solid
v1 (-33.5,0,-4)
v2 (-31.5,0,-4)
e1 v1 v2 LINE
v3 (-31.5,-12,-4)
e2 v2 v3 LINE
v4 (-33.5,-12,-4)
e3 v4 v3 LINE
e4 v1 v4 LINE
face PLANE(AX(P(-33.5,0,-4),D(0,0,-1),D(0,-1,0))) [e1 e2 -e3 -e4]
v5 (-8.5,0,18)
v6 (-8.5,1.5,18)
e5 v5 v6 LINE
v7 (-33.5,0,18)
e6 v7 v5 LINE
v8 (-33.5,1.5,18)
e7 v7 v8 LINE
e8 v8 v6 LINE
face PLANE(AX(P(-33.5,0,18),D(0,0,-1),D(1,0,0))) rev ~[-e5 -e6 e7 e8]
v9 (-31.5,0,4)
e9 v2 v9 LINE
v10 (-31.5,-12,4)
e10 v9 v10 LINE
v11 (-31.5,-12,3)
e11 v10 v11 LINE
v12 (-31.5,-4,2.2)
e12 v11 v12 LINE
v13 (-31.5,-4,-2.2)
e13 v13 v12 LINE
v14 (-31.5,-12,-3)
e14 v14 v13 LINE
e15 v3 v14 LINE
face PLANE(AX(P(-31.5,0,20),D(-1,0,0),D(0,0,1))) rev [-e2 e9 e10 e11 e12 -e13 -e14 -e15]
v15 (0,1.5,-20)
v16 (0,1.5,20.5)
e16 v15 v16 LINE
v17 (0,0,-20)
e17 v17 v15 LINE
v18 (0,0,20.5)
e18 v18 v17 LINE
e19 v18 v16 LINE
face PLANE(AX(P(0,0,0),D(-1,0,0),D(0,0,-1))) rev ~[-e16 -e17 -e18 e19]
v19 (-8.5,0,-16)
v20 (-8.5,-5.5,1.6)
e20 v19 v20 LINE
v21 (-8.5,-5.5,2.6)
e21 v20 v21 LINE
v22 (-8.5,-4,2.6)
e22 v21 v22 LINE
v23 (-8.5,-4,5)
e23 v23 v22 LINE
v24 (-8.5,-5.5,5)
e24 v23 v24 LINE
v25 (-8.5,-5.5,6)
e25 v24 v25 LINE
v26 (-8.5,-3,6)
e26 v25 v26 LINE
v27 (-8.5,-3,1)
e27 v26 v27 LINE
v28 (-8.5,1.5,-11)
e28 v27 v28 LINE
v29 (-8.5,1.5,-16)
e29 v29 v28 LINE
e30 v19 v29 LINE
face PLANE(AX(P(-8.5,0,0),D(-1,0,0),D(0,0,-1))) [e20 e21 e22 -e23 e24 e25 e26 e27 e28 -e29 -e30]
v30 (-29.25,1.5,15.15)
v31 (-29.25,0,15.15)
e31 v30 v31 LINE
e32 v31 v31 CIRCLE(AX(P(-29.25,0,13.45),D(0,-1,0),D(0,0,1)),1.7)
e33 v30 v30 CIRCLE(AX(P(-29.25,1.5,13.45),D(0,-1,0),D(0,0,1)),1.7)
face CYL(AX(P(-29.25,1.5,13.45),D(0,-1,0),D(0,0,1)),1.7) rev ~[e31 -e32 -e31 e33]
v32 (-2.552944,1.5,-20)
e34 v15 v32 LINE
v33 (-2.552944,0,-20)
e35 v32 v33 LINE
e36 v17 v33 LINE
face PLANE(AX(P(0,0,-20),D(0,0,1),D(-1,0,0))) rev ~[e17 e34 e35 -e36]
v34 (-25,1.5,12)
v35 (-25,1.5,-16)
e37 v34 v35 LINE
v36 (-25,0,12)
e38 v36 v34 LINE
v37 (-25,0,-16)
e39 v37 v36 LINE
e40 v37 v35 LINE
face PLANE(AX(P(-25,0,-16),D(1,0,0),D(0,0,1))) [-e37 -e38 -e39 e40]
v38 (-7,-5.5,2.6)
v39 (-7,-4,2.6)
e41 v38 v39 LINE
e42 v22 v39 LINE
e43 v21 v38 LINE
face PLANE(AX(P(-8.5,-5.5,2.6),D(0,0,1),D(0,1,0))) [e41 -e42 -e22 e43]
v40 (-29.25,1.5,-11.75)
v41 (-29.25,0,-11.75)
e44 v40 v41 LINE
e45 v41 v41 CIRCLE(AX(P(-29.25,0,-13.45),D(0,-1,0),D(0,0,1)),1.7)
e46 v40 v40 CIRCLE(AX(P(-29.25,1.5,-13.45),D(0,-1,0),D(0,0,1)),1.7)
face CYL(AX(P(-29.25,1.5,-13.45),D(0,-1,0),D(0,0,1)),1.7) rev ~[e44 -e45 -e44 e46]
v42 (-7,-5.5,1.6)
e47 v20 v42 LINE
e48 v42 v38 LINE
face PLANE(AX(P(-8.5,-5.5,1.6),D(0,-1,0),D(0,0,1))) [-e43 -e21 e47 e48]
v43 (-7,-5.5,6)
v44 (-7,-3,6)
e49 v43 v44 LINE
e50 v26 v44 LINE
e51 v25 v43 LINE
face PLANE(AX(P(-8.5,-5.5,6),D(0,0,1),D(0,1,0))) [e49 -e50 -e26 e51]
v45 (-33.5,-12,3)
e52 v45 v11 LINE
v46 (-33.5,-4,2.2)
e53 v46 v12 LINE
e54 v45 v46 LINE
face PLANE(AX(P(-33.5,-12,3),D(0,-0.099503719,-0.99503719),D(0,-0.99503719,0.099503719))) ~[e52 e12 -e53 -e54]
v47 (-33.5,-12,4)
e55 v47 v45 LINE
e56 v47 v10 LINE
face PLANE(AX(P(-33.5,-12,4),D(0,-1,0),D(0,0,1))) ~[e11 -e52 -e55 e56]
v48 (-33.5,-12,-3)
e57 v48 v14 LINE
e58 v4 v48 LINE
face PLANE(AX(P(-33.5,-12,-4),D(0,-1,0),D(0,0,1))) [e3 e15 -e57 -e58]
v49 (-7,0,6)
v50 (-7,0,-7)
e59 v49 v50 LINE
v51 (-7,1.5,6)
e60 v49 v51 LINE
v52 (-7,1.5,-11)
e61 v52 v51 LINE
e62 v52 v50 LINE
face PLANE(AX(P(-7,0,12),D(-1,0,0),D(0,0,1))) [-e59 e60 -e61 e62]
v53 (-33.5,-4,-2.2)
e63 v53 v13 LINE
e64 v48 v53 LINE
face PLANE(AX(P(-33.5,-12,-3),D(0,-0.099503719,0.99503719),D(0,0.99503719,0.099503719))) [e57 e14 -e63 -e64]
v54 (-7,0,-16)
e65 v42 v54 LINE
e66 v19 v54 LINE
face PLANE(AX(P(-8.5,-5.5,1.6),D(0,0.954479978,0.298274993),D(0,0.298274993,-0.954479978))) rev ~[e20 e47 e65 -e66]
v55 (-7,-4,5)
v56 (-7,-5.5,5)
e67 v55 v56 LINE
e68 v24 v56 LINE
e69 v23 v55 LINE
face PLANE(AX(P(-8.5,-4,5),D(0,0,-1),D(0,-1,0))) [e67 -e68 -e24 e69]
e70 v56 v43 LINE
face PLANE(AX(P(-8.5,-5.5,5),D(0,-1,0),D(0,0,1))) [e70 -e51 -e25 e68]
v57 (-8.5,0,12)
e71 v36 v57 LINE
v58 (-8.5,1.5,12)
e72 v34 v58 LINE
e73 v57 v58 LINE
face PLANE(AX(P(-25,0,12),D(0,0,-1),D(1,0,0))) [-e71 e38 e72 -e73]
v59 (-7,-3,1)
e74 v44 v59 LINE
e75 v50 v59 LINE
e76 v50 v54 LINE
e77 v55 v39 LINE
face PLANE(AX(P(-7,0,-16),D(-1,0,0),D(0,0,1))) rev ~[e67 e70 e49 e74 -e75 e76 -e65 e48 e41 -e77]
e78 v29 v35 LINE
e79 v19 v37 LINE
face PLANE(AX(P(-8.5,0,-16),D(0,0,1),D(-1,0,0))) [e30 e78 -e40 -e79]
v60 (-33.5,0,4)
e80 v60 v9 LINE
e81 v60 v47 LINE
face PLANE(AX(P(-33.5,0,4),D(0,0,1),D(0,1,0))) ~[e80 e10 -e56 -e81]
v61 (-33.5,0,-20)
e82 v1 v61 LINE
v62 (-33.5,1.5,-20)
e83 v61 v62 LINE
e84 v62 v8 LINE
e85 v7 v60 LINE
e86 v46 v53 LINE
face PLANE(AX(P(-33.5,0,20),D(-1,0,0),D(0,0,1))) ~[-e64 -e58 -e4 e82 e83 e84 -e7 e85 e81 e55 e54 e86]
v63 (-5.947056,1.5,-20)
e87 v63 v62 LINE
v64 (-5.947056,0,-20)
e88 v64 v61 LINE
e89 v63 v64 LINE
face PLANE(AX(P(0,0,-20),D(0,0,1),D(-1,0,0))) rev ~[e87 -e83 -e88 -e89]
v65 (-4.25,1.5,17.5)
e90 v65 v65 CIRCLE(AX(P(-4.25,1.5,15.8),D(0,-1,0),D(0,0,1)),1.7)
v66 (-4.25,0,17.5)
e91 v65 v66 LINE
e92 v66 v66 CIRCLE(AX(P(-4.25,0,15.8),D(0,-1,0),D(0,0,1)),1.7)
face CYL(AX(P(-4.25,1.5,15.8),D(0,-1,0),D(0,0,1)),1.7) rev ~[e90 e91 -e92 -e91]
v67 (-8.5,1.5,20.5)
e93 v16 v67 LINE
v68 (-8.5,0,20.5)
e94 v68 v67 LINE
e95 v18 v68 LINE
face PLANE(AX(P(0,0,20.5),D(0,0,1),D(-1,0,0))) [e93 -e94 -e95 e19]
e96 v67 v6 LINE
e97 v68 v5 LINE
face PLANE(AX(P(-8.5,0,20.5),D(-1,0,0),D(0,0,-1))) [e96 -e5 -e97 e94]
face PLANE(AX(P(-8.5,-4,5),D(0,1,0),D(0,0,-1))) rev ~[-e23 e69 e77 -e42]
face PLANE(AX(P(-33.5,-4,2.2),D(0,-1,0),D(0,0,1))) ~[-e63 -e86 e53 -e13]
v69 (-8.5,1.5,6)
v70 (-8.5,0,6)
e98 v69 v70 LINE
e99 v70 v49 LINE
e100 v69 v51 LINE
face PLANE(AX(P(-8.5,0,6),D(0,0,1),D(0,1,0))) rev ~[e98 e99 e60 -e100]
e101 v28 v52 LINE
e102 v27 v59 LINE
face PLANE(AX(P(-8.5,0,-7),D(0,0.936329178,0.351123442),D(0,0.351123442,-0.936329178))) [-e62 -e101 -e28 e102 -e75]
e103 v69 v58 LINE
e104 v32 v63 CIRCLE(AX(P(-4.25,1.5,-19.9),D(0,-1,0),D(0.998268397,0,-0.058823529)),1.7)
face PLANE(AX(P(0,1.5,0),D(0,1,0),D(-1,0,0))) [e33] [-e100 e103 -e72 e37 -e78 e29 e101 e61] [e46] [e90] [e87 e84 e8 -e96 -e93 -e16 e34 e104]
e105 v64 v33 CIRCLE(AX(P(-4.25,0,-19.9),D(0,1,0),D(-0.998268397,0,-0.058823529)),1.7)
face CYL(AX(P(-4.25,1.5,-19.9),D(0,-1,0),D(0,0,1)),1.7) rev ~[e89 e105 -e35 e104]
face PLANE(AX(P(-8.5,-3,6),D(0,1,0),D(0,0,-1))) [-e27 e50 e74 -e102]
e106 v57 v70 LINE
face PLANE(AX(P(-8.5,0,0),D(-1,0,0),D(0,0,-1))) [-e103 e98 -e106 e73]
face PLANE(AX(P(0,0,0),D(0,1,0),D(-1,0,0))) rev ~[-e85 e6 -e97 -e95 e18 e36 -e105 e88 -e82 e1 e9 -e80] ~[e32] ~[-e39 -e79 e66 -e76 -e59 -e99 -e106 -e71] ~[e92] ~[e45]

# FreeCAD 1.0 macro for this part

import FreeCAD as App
import Part
import Sketcher
from FreeCAD import Vector

doc = App.newDocument("Part")
body = doc.addObject("PartDesign::Body", "Body")

# Sketch on XZ plane
sketch1 = doc.addObject("Sketcher::SketchObject", "Sketch")
body.addObject(sketch1)
sketch1.AttachmentSupport = (doc.XZ_Plane, [""])
sketch1.MapMode = "FlatFace"
sketch1.addGeometry([
    Part.LineSegment(Vector(0, -20, 0), Vector(-33.5, -20, 0)),  # 0
    Part.LineSegment(Vector(-33.5, -20, 0), Vector(-33.5, 18, 0)),  # 1
    Part.LineSegment(Vector(-33.5, 18, 0), Vector(-8.5, 18, 0)),  # 2
    Part.LineSegment(Vector(-8.5, 18, 0), Vector(-8.5, 20.5, 0)),  # 3
    Part.LineSegment(Vector(-8.5, 20.5, 0), Vector(0, 20.5, 0)),  # 4
    Part.LineSegment(Vector(0, 20.5, 0), Vector(0, -20, 0)),  # 5
    Part.LineSegment(Vector(-8.5, -16, 0), Vector(-8.5, 12, 0)),  # 6
    Part.LineSegment(Vector(-8.5, 12, 0), Vector(-25, 12, 0)),  # 7
    Part.LineSegment(Vector(-25, 12, 0), Vector(-25, -16, 0)),  # 8
    Part.LineSegment(Vector(-25, -16, 0), Vector(-8.5, -16, 0)),  # 9
], False)
sketch1.addConstraint([
    Sketcher.Constraint("Coincident", 0, 2, 1, 1),
    Sketcher.Constraint("Coincident", 1, 2, 2, 1),
    Sketcher.Constraint("Coincident", 2, 2, 3, 1),
    Sketcher.Constraint("Coincident", 3, 2, 4, 1),
    Sketcher.Constraint("Coincident", 4, 2, 5, 1),
    Sketcher.Constraint("Coincident", 5, 2, 0, 1),
    Sketcher.Constraint("Coincident", 6, 2, 7, 1),
    Sketcher.Constraint("Coincident", 7, 2, 8, 1),
    Sketcher.Constraint("Coincident", 8, 2, 9, 1),
    Sketcher.Constraint("Coincident", 9, 2, 6, 1),
    Sketcher.Constraint("Horizontal", 0),
    Sketcher.Constraint("Vertical", 1),
    Sketcher.Constraint("Horizontal", 2),
    Sketcher.Constraint("Vertical", 3),
    Sketcher.Constraint("Horizontal", 4),
    Sketcher.Constraint("Vertical", 5),
    Sketcher.Constraint("Vertical", 6),
    Sketcher.Constraint("Horizontal", 7),
    Sketcher.Constraint("Vertical", 8),
    Sketcher.Constraint("Horizontal", 9),
    Sketcher.Constraint("PointOnObject", 4, 2, -2),
    Sketcher.Constraint("Vertical", 3, 2, 6, 2),
    Sketcher.Constraint("DistanceX", 0, 2, 0, 1, 33.5),
    Sketcher.Constraint("DistanceX", 4, 1, 4, 2, 8.5),
    Sketcher.Constraint("DistanceY", 3, 1, 3, 2, 2.5),
    Sketcher.Constraint("DistanceY", 0, 2, -1, 1, 20.0),
    Sketcher.Constraint("DistanceY", -1, 1, 1, 2, 18.0),
    Sketcher.Constraint("DistanceY", 6, 2, 2, 2, 6.0),
    Sketcher.Constraint("DistanceY", 0, 2, 8, 2, 4.0),
    Sketcher.Constraint("DistanceX", 1, 2, 7, 2, 8.5),
])
pad1 = doc.addObject("PartDesign::Pad", "Pad")
body.addObject(pad1)
pad1.Profile = sketch1
pad1.Length = 1.5
pad1.Reversed = True

# Sketch on YZ plane
sketch2 = doc.addObject("Sketcher::SketchObject", "Sketch001")
body.addObject(sketch2)
sketch2.AttachmentSupport = (doc.YZ_Plane, [""])
sketch2.MapMode = "FlatFace"
sketch2.AttachmentOffset = App.Placement(Vector(0, 0, -8.5), App.Rotation())
sketch2.addGeometry([
    Part.LineSegment(Vector(-5.5, 6, 0), Vector(0, 6, 0)),  # 0
    Part.LineSegment(Vector(0, 6, 0), Vector(0, -16, 0)),  # 1
    Part.LineSegment(Vector(0, -16, 0), Vector(-5.5, 1.6, 0)),  # 2
    Part.LineSegment(Vector(-5.5, 1.6, 0), Vector(-5.5, 2.6, 0)),  # 3
    Part.LineSegment(Vector(-5.5, 2.6, 0), Vector(-4, 2.6, 0)),  # 4
    Part.LineSegment(Vector(-4, 2.6, 0), Vector(-4, 5, 0)),  # 5
    Part.LineSegment(Vector(-4, 5, 0), Vector(-5.5, 5, 0)),  # 6
    Part.LineSegment(Vector(-5.5, 5, 0), Vector(-5.5, 6, 0)),  # 7
], False)
sketch2.addConstraint([
    Sketcher.Constraint("Coincident", 0, 2, 1, 1),
    Sketcher.Constraint("Coincident", 1, 2, 2, 1),
    Sketcher.Constraint("Coincident", 2, 2, 3, 1),
    Sketcher.Constraint("Coincident", 3, 2, 4, 1),
    Sketcher.Constraint("Coincident", 4, 2, 5, 1),
    Sketcher.Constraint("Coincident", 5, 2, 6, 1),
    Sketcher.Constraint("Coincident", 6, 2, 7, 1),
    Sketcher.Constraint("Coincident", 7, 2, 0, 1),
    Sketcher.Constraint("Horizontal", 0),
    Sketcher.Constraint("Vertical", 1),
    Sketcher.Constraint("Vertical", 3),
    Sketcher.Constraint("Horizontal", 4),
    Sketcher.Constraint("Vertical", 5),
    Sketcher.Constraint("Horizontal", 6),
    Sketcher.Constraint("Vertical", 7),
    Sketcher.Constraint("PointOnObject", 0, 2, -2),
    Sketcher.Constraint("Vertical", 3, 2, 6, 2),
    Sketcher.Constraint("Equal", 3, 7),
    Sketcher.Constraint("DistanceY", 3, 1, 3, 2, 1.0),
    Sketcher.Constraint("DistanceX", 0, 1, 0, 2, 5.5),
    Sketcher.Constraint("DistanceX", 4, 2, -1, 1, 4.0),
    Sketcher.Constraint("DistanceY", -1, 1, 5, 2, 5.0),
    Sketcher.Constraint("DistanceY", -1, 1, 3, 2, 2.6),
    Sketcher.Constraint("DistanceY", 1, 2, 1, 1, 22.0),
])
pad2 = doc.addObject("PartDesign::Pad", "Pad001")
body.addObject(pad2)
pad2.Profile = sketch2
pad2.Length = 1.5

# Sketch on YZ plane
sketch3 = doc.addObject("Sketcher::SketchObject", "Sketch002")
body.addObject(sketch3)
sketch3.AttachmentSupport = (doc.YZ_Plane, [""])
sketch3.MapMode = "FlatFace"
sketch3.AttachmentOffset = App.Placement(Vector(0, 0, -8.5), App.Rotation())
sketch3.addGeometry([
    Part.LineSegment(Vector(1.5, 6, 0), Vector(1.5, -11, 0)),
    Part.LineSegment(Vector(1.5, -11, 0), Vector(-3, 1, 0)),
    Part.LineSegment(Vector(-3, 1, 0), Vector(-3, 6, 0)),
    Part.LineSegment(Vector(-3, 6, 0), Vector(1.5, 6, 0)),
], False)
sketch3.addConstraint([
    Sketcher.Constraint("Coincident", 0, 2, 1, 1),
    Sketcher.Constraint("Coincident", 1, 2, 2, 1),
    Sketcher.Constraint("Coincident", 2, 2, 3, 1),
    Sketcher.Constraint("Coincident", 3, 2, 0, 1),
    Sketcher.Constraint("Vertical", 0),
    Sketcher.Constraint("Vertical", 2),
    Sketcher.Constraint("Horizontal", 3),
    Sketcher.Constraint("DistanceY", 2, 1, 2, 2, 5.0),
    Sketcher.Constraint("DistanceY", -1, 1, 1, 2, 1.0),
    Sketcher.Constraint("DistanceY", 0, 2, 0, 1, 17.0),
    Sketcher.Constraint("DistanceX", 3, 1, 3, 2, 4.5),
    Sketcher.Constraint("DistanceX", 1, 2, -1, 1, 3.0),
])
pocket1 = doc.addObject("PartDesign::Pocket", "Pocket")
body.addObject(pocket1)
pocket1.Profile = sketch3
pocket1.Length = 1.5
pocket1.Reversed = True

# Sketch on YZ plane
sketch4 = doc.addObject("Sketcher::SketchObject", "Sketch003")
body.addObject(sketch4)
sketch4.AttachmentSupport = (doc.YZ_Plane, [""])
sketch4.MapMode = "FlatFace"
sketch4.AttachmentOffset = App.Placement(Vector(0, 0, -33.5), App.Rotation())
sketch4.addGeometry([
    Part.LineSegment(Vector(-4, 0, 0), Vector(0, 0, 0)),  # 0
    Part.LineSegment(Vector(0, 0, 0), Vector(0, -4, 0)),  # 1
    Part.LineSegment(Vector(0, -4, 0), Vector(-12, -4, 0)),  # 2
    Part.LineSegment(Vector(-12, -4, 0), Vector(-12, -3, 0)),  # 3
    Part.LineSegment(Vector(-12, -3, 0), Vector(-4, -2.2, 0)),  # 4
    Part.LineSegment(Vector(-4, -2.2, 0), Vector(-4, 0, 0)),  # 5
], False)
sketch4.addConstraint([
    Sketcher.Constraint("Coincident", 0, 2, 1, 1),
    Sketcher.Constraint("Coincident", 1, 2, 2, 1),
    Sketcher.Constraint("Coincident", 2, 2, 3, 1),
    Sketcher.Constraint("Coincident", 3, 2, 4, 1),
    Sketcher.Constraint("Coincident", 4, 2, 5, 1),
    Sketcher.Constraint("Coincident", 5, 2, 0, 1),
    Sketcher.Constraint("Horizontal", 0),
    Sketcher.Constraint("Vertical", 1),
    Sketcher.Constraint("Horizontal", 2),
    Sketcher.Constraint("Vertical", 3),
    Sketcher.Constraint("Vertical", 5),
    Sketcher.Constraint("Coincident", 0, 2, -1, 1),
    Sketcher.Constraint("Equal", 0, 1),
    Sketcher.Constraint("DistanceX", 0, 1, 0, 2, 4.0),
    Sketcher.Constraint("DistanceX", 2, 2, 2, 1, 12.0),
    Sketcher.Constraint("DistanceY", 5, 1, 5, 2, 2.2),
    Sketcher.Constraint("DistanceY", 3, 2, -1, 1, 3.0),
])
pad3 = doc.addObject("PartDesign::Pad", "Pad002")
body.addObject(pad3)
pad3.Profile = sketch4
pad3.Length = 2
doc.recompute()

mirrored = doc.addObject("PartDesign::Mirrored", "Mirrored")
body.addObject(mirrored)
mirrored.Originals = [pad3]
mirrored.MirrorPlane = (doc.XY_Plane, [""])
body.Tip = mirrored

# Sketch on XZ plane
sketch5 = doc.addObject("Sketcher::SketchObject", "Sketch004")
body.addObject(sketch5)
sketch5.AttachmentSupport = (doc.XZ_Plane, [""])
sketch5.MapMode = "FlatFace"
sketch5.AttachmentOffset = App.Placement(Vector(0, 0, -1.5), App.Rotation())
sketch5.addGeometry([
    Part.Circle(Vector(-29.2, 13.4, 0), Vector(0, 0, 1), 1.7),
    Part.Circle(Vector(-29.2, -13.4, 0), Vector(0, 0, 1), 1.7),
    Part.Circle(Vector(-4.2, 15.8, 0), Vector(0, 0, 1), 1.7),
    Part.Circle(Vector(-4.2, -19.9, 0), Vector(0, 0, 1), 1.7),
], False)
sketch5.addConstraint([
    Sketcher.Constraint("Equal", 0, 1),
    Sketcher.Constraint("Equal", 1, 2),
    Sketcher.Constraint("Equal", 2, 3),
    Sketcher.Constraint("Symmetric", 0, 3, 1, 3, -1),
    Sketcher.Constraint("Vertical", 2, 3, 3, 3),
    Sketcher.Constraint("Diameter", 0, 3.4),
    Sketcher.Constraint("DistanceX", 0, 3, 2, 3, 25.0),
    Sketcher.Constraint("DistanceY", -1, 1, 2, 3, 15.8),
    Sketcher.Constraint("DistanceY", 3, 3, -1, 1, 19.9),
    Sketcher.Constraint("DistanceY", 1, 3, 0, 3, 26.9),
    Sketcher.Constraint("DistanceX", 0, 3, -1, 1, 29.25),
])
doc.recompute()
hole = doc.addObject("PartDesign::Hole", "Hole")
body.addObject(hole)
hole.Profile = sketch5
hole.ThreadType = "None"
hole.Diameter = 3.4
hole.DepthType = "Dimension"
hole.Depth = 23.75
hole.DrillPoint = "Angled"
hole.DrillPointAngle = 118
hole.Reversed = True

doc.recompute()
